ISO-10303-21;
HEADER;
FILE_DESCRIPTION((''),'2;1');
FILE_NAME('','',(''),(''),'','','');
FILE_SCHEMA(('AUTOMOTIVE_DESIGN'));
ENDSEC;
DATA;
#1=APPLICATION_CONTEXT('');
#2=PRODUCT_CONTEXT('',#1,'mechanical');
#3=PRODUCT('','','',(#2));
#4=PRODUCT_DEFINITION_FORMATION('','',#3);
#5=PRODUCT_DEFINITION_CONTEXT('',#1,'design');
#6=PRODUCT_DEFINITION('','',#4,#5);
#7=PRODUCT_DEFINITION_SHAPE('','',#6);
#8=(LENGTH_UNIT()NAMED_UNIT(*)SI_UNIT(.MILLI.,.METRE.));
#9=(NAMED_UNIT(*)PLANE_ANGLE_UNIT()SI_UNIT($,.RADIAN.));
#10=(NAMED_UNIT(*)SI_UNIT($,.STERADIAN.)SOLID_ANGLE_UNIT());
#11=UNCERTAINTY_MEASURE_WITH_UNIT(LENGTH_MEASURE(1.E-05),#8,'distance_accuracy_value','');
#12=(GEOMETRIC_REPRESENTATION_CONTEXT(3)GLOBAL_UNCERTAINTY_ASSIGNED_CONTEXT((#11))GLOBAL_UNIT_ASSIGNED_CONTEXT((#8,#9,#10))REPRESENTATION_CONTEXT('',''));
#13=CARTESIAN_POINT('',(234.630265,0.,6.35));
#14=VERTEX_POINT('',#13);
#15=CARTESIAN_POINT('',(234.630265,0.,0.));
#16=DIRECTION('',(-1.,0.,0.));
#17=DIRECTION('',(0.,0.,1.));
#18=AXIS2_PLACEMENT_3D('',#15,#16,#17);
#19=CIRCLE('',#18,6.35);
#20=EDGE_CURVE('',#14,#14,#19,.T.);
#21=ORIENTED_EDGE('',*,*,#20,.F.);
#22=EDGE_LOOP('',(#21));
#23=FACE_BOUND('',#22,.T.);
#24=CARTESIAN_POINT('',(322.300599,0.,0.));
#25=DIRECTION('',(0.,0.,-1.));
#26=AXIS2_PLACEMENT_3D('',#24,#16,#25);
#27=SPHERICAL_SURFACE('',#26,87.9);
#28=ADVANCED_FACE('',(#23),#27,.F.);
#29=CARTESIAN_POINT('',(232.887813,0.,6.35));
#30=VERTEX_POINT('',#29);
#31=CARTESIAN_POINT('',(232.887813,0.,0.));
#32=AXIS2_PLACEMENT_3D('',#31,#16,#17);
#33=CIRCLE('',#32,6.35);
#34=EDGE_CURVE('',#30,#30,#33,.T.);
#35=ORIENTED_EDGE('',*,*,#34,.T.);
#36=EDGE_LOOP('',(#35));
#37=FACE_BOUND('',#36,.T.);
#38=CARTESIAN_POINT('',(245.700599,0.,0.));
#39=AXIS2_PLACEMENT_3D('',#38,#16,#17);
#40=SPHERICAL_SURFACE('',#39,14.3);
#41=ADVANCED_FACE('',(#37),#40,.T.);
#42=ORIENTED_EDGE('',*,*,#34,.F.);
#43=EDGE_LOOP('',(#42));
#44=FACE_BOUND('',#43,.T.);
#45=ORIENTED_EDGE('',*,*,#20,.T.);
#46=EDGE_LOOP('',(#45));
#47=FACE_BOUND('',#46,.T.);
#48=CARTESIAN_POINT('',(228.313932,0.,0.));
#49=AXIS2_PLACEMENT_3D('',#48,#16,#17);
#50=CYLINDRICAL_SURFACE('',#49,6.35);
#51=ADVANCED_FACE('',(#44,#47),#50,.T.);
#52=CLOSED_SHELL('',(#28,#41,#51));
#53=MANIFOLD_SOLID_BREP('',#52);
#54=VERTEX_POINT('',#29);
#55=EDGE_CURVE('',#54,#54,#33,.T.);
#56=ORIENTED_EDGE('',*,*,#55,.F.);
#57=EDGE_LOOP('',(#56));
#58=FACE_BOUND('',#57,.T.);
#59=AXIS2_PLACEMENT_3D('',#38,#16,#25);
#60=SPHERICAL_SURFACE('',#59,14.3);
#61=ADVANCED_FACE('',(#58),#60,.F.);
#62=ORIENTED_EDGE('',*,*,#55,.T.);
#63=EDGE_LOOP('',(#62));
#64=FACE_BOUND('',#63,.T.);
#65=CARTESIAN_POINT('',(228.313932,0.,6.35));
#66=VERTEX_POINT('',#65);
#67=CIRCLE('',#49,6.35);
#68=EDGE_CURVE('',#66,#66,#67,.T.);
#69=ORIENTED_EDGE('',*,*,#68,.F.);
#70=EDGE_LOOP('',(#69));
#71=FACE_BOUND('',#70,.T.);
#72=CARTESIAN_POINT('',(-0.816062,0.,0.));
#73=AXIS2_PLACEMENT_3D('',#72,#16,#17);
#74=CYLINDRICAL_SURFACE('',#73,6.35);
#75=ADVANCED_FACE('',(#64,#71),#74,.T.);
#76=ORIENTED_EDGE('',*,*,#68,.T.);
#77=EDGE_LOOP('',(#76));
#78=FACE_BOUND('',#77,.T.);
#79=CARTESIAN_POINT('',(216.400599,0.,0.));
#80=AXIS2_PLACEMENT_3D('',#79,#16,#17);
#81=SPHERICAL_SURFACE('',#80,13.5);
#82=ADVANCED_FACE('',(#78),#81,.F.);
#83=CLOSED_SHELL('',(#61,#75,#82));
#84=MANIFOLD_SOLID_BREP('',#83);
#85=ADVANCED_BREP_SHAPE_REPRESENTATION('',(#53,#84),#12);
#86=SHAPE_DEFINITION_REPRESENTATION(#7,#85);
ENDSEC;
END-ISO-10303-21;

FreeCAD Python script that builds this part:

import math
import FreeCAD as App
import Part
import Sketcher

doc = App.newDocument("Part")
body = doc.addObject("PartDesign::Body", "Body")

sketch1 = doc.addObject("Sketcher::SketchObject", "Sketch")
body.addObject(sketch1)
sketch1.AttachmentSupport = (doc.XZ_Plane, [""])
sketch1.MapMode = "FlatFace"
sketch1.addGeometry(Part.LineSegment(App.Vector(232.887813, -6.35, 0), App.Vector(228.313932, -6.35, 0)), False)
sketch1.addGeometry(Part.ArcOfCircle(Part.Circle(App.Vector(216.400599, 0, 0), App.Vector(0, 0, 1), 13.5), math.radians(-28.058341), math.radians(0)), False)
sketch1.addGeometry(Part.LineSegment(App.Vector(229.900599, 0, 0), App.Vector(231.400599, 0, 0)), False)
sketch1.addGeometry(Part.ArcOfCircle(Part.Circle(App.Vector(245.700599, 0, 0), App.Vector(0, 0, 1), 14.3), math.radians(180), math.radians(206.362954)), False)
sketch1.addConstraint(Sketcher.Constraint("Coincident", 0, 2, 1, 1))
sketch1.addConstraint(Sketcher.Constraint("Coincident", 1, 2, 2, 1))
sketch1.addConstraint(Sketcher.Constraint("Coincident", 2, 2, 3, 1))
sketch1.addConstraint(Sketcher.Constraint("Coincident", 3, 2, 0, 1))
sketch1.addConstraint(Sketcher.Constraint("Horizontal", 0))
sketch1.addConstraint(Sketcher.Constraint("Horizontal", 2))
sketch1.addConstraint(Sketcher.Constraint("PointOnObject", 1, 3, -1))
sketch1.addConstraint(Sketcher.Constraint("PointOnObject", 3, 3, -1))
sketch1.addConstraint(Sketcher.Constraint("PointOnObject", 1, 2, -1))
sketch1.addConstraint(Sketcher.Constraint("Radius", 1, 13.5))
sketch1.addConstraint(Sketcher.Constraint("Radius", 3, 14.3))
sketch1.addConstraint(Sketcher.Constraint("DistanceX", 2, 1, 2, 2, 1.5))
sketch1.addConstraint(Sketcher.Constraint("DistanceY", 0, 2, -1, 1, 6.35))
sketch1.addConstraint(Sketcher.Constraint("DistanceX", -1, 1, 1, 3, 216.400599))
revolution = doc.addObject("PartDesign::Revolution", "Revolution")
body.addObject(revolution)
revolution.Profile = sketch1
revolution.ReferenceAxis = (sketch1, ["H_Axis"])
revolution.Angle = 360
body2 = doc.addObject("PartDesign::Body", "Body001")

sketch2 = doc.addObject("Sketcher::SketchObject", "Sketch001")
body2.addObject(sketch2)
sketch2.AttachmentSupport = (doc.getObject("XZ_Plane001"), [""])
sketch2.MapMode = "FlatFace"
sketch2.addGeometry(Part.LineSegment(App.Vector(234.630265, -6.35, 0), App.Vector(232.887813, -6.35, 0)), False)
sketch2.addGeometry(Part.ArcOfCircle(Part.Circle(App.Vector(245.700599, 0, 0), App.Vector(0, 0, 1), 14.3), math.radians(180), math.radians(206.362954)), False)
sketch2.addGeometry(Part.LineSegment(App.Vector(231.400599, 0, 0), App.Vector(234.400599, 0, 0)), False)
sketch2.addGeometry(Part.ArcOfCircle(Part.Circle(App.Vector(322.300599, 0, 0), App.Vector(0, 0, 1), 87.9), math.radians(180), math.radians(184.142724)), False)
sketch2.addConstraint(Sketcher.Constraint("Coincident", 0, 2, 1, 2))
sketch2.addConstraint(Sketcher.Constraint("Coincident", 1, 1, 2, 1))
sketch2.addConstraint(Sketcher.Constraint("Coincident", 2, 2, 3, 1))
sketch2.addConstraint(Sketcher.Constraint("Coincident", 3, 2, 0, 1))
sketch2.addConstraint(Sketcher.Constraint("Horizontal", 0))
sketch2.addConstraint(Sketcher.Constraint("Horizontal", 2))
sketch2.addConstraint(Sketcher.Constraint("PointOnObject", 1, 3, -1))
sketch2.addConstraint(Sketcher.Constraint("PointOnObject", 3, 3, -1))
sketch2.addConstraint(Sketcher.Constraint("PointOnObject", 1, 1, -1))
sketch2.addConstraint(Sketcher.Constraint("Radius", 1, 14.3))
sketch2.addConstraint(Sketcher.Constraint("Radius", 3, 87.9))
sketch2.addConstraint(Sketcher.Constraint("DistanceX", 2, 1, 2, 2, 3.0))
sketch2.addConstraint(Sketcher.Constraint("DistanceY", 0, 2, -1, 1, 6.35))
sketch2.addConstraint(Sketcher.Constraint("DistanceX", -1, 1, 1, 3, 245.700599))
revolution2 = doc.addObject("PartDesign::Revolution", "Revolution001")
body2.addObject(revolution2)
revolution2.Profile = sketch2
revolution2.ReferenceAxis = (sketch2, ["H_Axis"])
revolution2.Angle = 360

doc.recompute()
